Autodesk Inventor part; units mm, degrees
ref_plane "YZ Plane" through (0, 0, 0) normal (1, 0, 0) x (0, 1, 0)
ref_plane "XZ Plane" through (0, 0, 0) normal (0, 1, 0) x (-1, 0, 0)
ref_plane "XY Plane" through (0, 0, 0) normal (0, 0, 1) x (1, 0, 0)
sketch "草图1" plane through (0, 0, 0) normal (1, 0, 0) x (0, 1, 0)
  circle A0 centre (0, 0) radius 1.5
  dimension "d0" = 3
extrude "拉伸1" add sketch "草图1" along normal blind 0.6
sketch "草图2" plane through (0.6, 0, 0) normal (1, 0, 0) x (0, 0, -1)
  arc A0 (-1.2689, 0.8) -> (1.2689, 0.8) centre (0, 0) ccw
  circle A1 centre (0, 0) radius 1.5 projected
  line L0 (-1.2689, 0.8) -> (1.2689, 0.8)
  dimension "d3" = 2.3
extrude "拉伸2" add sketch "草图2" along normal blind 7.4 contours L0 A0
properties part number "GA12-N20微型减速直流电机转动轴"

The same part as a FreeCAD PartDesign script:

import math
import FreeCAD as App
import Part
import Sketcher

V = App.Vector

doc = App.newDocument("Part")
body = doc.addObject("PartDesign::Body", "Body")

# Sketch on YZ plane
sketch1 = body.newObject("Sketcher::SketchObject", "Sketch")
sketch1.AttachmentSupport = (doc.getObject("YZ_Plane"), [""])
sketch1.MapMode = "FlatFace"
sketch1.addGeometry(Part.Circle(V(0, 0, 0), V(0, 0, 1), 1.5), False)
sketch1.addConstraint([
    Sketcher.Constraint("Coincident", 0, 3, -1, 1),
    Sketcher.Constraint("Diameter", 0, 3.0),
])
pad1 = body.newObject("PartDesign::Pad", "Pad")
pad1.Profile = sketch1
pad1.Length = 0.6

# Sketch on YZ plane
sketch2 = body.newObject("Sketcher::SketchObject", "Sketch001")
sketch2.AttachmentSupport = (doc.getObject("YZ_Plane"), [""])
sketch2.MapMode = "FlatFace"
sketch2.AttachmentOffset = App.Placement(V(0, 0, 0.6), App.Rotation())
sketch2.addGeometry([
    Part.LineSegment(V(0.8, -1.2689, 0), V(0.8, 1.2689, 0)),
    Part.ArcOfCircle(Part.Circle(V(0, 0, 0), V(0, 0, 1), 1.500036), math.radians(57.769908), math.radians(302.230092)),
], False)
sketch2.addConstraint([
    Sketcher.Constraint("Coincident", 0, 1, 1, 2),
    Sketcher.Constraint("Coincident", 1, 1, 0, 2),
    Sketcher.Constraint("Vertical", 0),
    Sketcher.Constraint("Coincident", 1, 3, -1, 1),
    Sketcher.Constraint("Radius", 1, 1.5),
    Sketcher.Constraint("DistanceX", -1, 1, 0, 1, 0.8),
])
pad2 = body.newObject("PartDesign::Pad", "Pad001")
pad2.Profile = sketch2
pad2.Length = 7.4

doc.recompute()
